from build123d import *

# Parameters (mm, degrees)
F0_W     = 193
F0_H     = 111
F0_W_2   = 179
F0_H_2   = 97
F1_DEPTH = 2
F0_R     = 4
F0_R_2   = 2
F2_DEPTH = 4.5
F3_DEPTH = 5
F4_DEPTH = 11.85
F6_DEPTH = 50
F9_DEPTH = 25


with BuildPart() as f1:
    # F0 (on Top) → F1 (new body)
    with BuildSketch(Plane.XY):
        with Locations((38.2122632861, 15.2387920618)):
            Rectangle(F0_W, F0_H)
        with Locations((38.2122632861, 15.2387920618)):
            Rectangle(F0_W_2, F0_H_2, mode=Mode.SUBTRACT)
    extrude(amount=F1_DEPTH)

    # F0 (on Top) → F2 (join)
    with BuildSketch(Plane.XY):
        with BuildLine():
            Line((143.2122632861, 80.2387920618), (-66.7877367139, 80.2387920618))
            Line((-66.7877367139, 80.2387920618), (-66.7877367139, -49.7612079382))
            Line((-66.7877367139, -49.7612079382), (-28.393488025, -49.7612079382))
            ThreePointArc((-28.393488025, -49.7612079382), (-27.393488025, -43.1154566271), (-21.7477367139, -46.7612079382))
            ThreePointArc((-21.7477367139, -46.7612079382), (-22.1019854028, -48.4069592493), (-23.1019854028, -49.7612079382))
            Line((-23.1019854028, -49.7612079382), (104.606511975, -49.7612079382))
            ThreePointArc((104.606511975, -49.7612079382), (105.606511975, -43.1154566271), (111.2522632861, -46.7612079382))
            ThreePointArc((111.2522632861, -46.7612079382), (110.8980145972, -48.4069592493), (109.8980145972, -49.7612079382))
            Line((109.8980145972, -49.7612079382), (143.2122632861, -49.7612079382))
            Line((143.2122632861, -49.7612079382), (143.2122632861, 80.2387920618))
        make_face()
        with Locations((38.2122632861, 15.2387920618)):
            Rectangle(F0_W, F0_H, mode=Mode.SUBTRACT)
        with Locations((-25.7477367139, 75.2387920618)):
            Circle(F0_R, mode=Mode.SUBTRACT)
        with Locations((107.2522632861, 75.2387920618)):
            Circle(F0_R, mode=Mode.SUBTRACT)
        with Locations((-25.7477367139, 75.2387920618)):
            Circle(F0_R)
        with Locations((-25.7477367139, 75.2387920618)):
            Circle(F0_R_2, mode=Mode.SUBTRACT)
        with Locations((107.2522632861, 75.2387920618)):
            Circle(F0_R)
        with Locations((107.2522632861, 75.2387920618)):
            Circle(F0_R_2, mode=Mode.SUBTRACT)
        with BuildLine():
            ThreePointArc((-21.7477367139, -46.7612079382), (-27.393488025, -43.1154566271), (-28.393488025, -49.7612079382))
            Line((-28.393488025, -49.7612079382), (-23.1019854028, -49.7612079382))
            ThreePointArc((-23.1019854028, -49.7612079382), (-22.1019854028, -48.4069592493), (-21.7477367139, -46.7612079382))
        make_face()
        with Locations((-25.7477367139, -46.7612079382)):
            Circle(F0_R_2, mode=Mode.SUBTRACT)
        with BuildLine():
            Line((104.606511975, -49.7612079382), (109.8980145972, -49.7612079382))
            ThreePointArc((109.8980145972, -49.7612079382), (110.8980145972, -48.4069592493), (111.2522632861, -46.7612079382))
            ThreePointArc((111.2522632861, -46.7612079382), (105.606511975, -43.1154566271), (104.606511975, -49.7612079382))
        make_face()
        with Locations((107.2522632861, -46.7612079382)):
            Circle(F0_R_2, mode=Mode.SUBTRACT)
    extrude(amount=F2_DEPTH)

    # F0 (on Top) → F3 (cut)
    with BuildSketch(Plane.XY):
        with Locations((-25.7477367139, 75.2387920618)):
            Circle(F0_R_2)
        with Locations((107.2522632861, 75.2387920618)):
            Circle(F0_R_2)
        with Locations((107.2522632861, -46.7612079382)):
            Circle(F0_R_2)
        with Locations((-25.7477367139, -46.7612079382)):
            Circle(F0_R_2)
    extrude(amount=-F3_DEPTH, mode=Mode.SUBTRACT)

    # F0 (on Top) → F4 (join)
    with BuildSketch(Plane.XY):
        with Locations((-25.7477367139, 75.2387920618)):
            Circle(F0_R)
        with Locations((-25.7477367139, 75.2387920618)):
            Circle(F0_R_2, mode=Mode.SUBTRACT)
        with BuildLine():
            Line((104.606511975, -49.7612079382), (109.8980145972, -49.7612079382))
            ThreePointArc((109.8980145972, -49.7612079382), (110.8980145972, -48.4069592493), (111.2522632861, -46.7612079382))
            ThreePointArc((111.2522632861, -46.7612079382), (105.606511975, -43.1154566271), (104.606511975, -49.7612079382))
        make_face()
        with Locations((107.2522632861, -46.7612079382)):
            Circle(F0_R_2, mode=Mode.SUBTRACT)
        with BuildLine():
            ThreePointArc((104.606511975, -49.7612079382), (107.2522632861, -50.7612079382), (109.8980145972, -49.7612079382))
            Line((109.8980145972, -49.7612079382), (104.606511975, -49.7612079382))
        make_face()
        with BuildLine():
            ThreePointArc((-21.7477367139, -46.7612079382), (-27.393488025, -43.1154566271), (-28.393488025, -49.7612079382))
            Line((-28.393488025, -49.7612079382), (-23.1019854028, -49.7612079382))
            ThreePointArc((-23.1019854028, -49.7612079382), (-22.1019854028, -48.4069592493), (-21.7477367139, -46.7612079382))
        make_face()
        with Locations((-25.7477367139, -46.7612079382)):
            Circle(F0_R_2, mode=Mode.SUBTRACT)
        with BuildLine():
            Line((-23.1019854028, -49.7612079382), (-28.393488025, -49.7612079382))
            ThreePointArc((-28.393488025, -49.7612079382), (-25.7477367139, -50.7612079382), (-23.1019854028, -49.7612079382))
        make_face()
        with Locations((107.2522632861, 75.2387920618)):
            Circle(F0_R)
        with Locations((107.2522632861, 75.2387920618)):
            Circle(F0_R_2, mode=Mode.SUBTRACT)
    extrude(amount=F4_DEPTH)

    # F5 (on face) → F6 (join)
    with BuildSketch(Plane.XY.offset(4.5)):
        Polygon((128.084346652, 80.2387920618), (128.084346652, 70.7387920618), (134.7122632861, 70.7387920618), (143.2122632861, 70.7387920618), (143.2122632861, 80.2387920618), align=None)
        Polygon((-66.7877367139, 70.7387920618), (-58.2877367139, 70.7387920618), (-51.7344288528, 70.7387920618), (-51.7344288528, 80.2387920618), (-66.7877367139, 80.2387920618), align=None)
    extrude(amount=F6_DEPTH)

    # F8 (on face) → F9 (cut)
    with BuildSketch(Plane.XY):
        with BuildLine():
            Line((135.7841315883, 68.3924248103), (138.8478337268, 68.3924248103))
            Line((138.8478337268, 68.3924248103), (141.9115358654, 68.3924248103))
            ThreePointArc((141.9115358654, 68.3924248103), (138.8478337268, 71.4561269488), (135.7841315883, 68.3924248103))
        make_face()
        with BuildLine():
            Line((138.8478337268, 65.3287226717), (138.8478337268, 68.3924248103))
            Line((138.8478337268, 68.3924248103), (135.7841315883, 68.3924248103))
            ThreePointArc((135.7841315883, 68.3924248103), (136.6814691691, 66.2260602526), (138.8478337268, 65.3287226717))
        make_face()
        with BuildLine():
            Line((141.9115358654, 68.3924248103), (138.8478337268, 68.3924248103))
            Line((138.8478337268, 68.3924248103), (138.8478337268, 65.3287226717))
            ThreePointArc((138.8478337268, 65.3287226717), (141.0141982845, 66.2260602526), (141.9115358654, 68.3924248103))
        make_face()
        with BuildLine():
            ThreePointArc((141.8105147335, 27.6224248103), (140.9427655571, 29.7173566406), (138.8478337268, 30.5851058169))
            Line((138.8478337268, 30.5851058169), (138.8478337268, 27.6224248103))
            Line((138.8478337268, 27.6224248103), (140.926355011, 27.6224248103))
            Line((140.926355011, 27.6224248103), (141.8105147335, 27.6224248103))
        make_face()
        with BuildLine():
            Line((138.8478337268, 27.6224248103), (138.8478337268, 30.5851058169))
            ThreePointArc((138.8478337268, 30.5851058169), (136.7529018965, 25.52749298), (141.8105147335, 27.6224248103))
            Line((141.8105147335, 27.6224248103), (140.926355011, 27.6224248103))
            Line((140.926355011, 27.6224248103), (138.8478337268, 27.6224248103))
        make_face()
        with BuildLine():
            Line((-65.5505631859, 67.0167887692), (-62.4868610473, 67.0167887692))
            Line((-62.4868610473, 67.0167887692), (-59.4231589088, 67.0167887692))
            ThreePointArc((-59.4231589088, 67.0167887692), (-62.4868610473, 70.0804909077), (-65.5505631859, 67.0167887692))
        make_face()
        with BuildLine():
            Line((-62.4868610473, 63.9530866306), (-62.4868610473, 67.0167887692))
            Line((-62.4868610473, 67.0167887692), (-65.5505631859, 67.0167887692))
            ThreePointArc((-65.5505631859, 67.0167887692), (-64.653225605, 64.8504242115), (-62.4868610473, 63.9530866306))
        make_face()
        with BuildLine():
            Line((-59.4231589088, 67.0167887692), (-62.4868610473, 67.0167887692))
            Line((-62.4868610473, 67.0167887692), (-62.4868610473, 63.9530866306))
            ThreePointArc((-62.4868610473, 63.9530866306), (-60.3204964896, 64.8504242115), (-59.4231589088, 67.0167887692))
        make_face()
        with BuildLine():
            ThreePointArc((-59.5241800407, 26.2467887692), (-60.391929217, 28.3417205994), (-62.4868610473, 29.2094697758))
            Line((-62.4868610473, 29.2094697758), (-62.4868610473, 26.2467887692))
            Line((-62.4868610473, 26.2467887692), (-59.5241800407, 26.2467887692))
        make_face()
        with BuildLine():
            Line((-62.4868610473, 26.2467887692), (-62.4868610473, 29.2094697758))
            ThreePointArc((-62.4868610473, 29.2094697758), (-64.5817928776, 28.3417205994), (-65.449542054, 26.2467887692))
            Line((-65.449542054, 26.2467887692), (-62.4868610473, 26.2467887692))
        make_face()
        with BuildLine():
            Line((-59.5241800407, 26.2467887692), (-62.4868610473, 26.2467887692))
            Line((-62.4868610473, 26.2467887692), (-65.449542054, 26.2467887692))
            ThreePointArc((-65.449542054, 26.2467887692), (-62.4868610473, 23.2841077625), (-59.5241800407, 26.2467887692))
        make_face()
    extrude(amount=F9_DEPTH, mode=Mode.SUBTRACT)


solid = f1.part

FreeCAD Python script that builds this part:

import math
import FreeCAD as App
import Part
import Sketcher

V = App.Vector
Q = App.Units.Quantity


def add_polygon(sketch, points):
    """Adds a closed chain of lines whose ends are joined by coincident constraints."""
    first, n = sketch.GeometryCount, len(points)
    for a, b in zip(points, points[1:] + points[:1]):
        sketch.addGeometry(Part.LineSegment(App.Vector(*a, 0), App.Vector(*b, 0)), False)
    for i in range(n):
        sketch.addConstraint(Sketcher.Constraint("Coincident", first + i, 2, first + (i + 1) % n, 1))

doc = App.newDocument("Part")
body = doc.addObject("PartDesign::Body", "Body")

sketch1 = doc.addObject("Sketcher::SketchObject", "Sketch")
body.addObject(sketch1)
sketch1.AttachmentSupport = (doc.XY_Plane, [""])
sketch1.MapMode = "FlatFace"
add_polygon(sketch1, [(-58.287737, 70.738792), (-58.287737, -40.261208), (134.712263, -40.261208), (134.712263, 70.738792)])
add_polygon(sketch1, [(127.712263, -33.261208), (-51.287737, -33.261208), (-51.287737, 63.738792), (127.712263, 63.738792)])
sketch1.addConstraint(Sketcher.Constraint("Vertical", 0))
sketch1.addConstraint(Sketcher.Constraint("Horizontal", 1))
sketch1.addConstraint(Sketcher.Constraint("Vertical", 2))
sketch1.addConstraint(Sketcher.Constraint("Horizontal", 3))
sketch1.addConstraint(Sketcher.Constraint("Horizontal", 4))
sketch1.addConstraint(Sketcher.Constraint("Vertical", 5))
sketch1.addConstraint(Sketcher.Constraint("Horizontal", 6))
sketch1.addConstraint(Sketcher.Constraint("Vertical", 7))
sketch1.addConstraint(Sketcher.Constraint("DistanceX", 1, 1, 1, 2, Q("193 mm")))
sketch1.addConstraint(Sketcher.Constraint("DistanceX", 4, 2, 4, 1, Q("179 mm")))
sketch1.addConstraint(Sketcher.Constraint("DistanceY", 0, 2, 0, 1, Q("111 mm")))
sketch1.addConstraint(Sketcher.Constraint("DistanceY", 5, 1, 5, 2, Q("97 mm")))
sketch1.addConstraint(Sketcher.Constraint("DistanceX", 0, 2, 4, 2, Q("7 mm")))
sketch1.addConstraint(Sketcher.Constraint("DistanceY", 0, 2, 4, 2, Q("7 mm")))
sketch1.addConstraint(Sketcher.Constraint("DistanceX", 0, 2, -1, 1, Q("58.287737 mm")))
sketch1.addConstraint(Sketcher.Constraint("DistanceY", 0, 2, -1, 1, Q("40.261208 mm")))
pad1 = doc.addObject("PartDesign::Pad", "Pad")
body.addObject(pad1)
pad1.Profile = sketch1
pad1.Length = 2

sketch2 = doc.addObject("Sketcher::SketchObject", "Sketch001")
body.addObject(sketch2)
sketch2.AttachmentSupport = (doc.XY_Plane, [""])
sketch2.MapMode = "FlatFace"
add_polygon(sketch2, [(143.212263, 80.238792), (-66.787737, 80.238792), (-66.787737, -49.761208), (143.212263, -49.761208)])
sketch2.addGeometry(Part.Circle(V(-25.747737, -46.761208, 0), V(0, 0, 1), 2), False)
sketch2.addGeometry(Part.Circle(V(107.252263, -46.761208, 0), V(0, 0, 1), 2), False)
sketch2.addGeometry(Part.Circle(V(-25.747737, 75.238792, 0), V(0, 0, 1), 2), False)
add_polygon(sketch2, [(134.712263, -40.261208), (-58.287737, -40.261208), (-58.287737, 70.738792), (134.712263, 70.738792)])
sketch2.addGeometry(Part.Circle(V(107.252263, 75.238792, 0), V(0, 0, 1), 2), False)
sketch2.addConstraint(Sketcher.Constraint("Horizontal", 0))
sketch2.addConstraint(Sketcher.Constraint("Vertical", 1))
sketch2.addConstraint(Sketcher.Constraint("Horizontal", 2))
sketch2.addConstraint(Sketcher.Constraint("Vertical", 3))
sketch2.addConstraint(Sketcher.Constraint("Horizontal", 7))
sketch2.addConstraint(Sketcher.Constraint("Vertical", 8))
sketch2.addConstraint(Sketcher.Constraint("Horizontal", 9))
sketch2.addConstraint(Sketcher.Constraint("Vertical", 10))
sketch2.addConstraint(Sketcher.Constraint("Equal", 4, 5))
sketch2.addConstraint(Sketcher.Constraint("Equal", 5, 6))
sketch2.addConstraint(Sketcher.Constraint("Equal", 6, 11))
sketch2.addConstraint(Sketcher.Constraint("Horizontal", 4, 3, 5, 3))
sketch2.addConstraint(Sketcher.Constraint("Horizontal", 6, 3, 11, 3))
sketch2.addConstraint(Sketcher.Constraint("Vertical", 4, 3, 6, 3))
sketch2.addConstraint(Sketcher.Constraint("Vertical", 5, 3, 11, 3))
sketch2.addConstraint(Sketcher.Constraint("Diameter", 4, Q("4 mm")))
sketch2.addConstraint(Sketcher.Constraint("DistanceX", 0, 2, 0, 1, Q("210 mm")))
sketch2.addConstraint(Sketcher.Constraint("DistanceX", 7, 2, 7, 1, Q("193 mm")))
sketch2.addConstraint(Sketcher.Constraint("DistanceY", 1, 2, 1, 1, Q("130 mm")))
sketch2.addConstraint(Sketcher.Constraint("DistanceY", 8, 1, 8, 2, Q("111 mm")))
sketch2.addConstraint(Sketcher.Constraint("DistanceX", 4, 3, 5, 3, Q("133 mm")))
sketch2.addConstraint(Sketcher.Constraint("DistanceY", 4, 3, 6, 3, Q("122 mm")))
sketch2.addConstraint(Sketcher.Constraint("DistanceY", 6, 3, 0, 2, Q("5 mm")))
sketch2.addConstraint(Sketcher.Constraint("DistanceX", 1, 2, 7, 2, Q("8.5 mm")))
sketch2.addConstraint(Sketcher.Constraint("DistanceY", 1, 2, 7, 2, Q("9.5 mm")))
sketch2.addConstraint(Sketcher.Constraint("DistanceX", 0, 2, 6, 3, Q("41.04 mm")))
sketch2.addConstraint(Sketcher.Constraint("DistanceX", 4, 3, -1, 1, Q("25.747737 mm")))
sketch2.addConstraint(Sketcher.Constraint("DistanceY", 4, 3, -1, 1, Q("46.761208 mm")))
pad2 = doc.addObject("PartDesign::Pad", "Pad001")
body.addObject(pad2)
pad2.Profile = sketch2
pad2.Length = 4.5

sketch3 = doc.addObject("Sketcher::SketchObject", "Sketch002")
body.addObject(sketch3)
sketch3.AttachmentSupport = (doc.XY_Plane, [""])
sketch3.MapMode = "FlatFace"
sketch3.addGeometry(Part.Circle(V(-25.747737, 75.238792, 0), V(0, 0, 1), 2), False)
sketch3.addGeometry(Part.Circle(V(107.252263, 75.238792, 0), V(0, 0, 1), 2), False)
sketch3.addGeometry(Part.Circle(V(107.252263, -46.761208, 0), V(0, 0, 1), 2), False)
sketch3.addGeometry(Part.Circle(V(-25.747737, -46.761208, 0), V(0, 0, 1), 2), False)
sketch3.addConstraint(Sketcher.Constraint("Equal", 0, 1))
sketch3.addConstraint(Sketcher.Constraint("Equal", 1, 2))
sketch3.addConstraint(Sketcher.Constraint("Equal", 2, 3))
sketch3.addConstraint(Sketcher.Constraint("Horizontal", 0, 3, 1, 3))
sketch3.addConstraint(Sketcher.Constraint("Horizontal", 2, 3, 3, 3))
sketch3.addConstraint(Sketcher.Constraint("Vertical", 1, 3, 2, 3))
sketch3.addConstraint(Sketcher.Constraint("Vertical", 0, 3, 3, 3))
sketch3.addConstraint(Sketcher.Constraint("Diameter", 0, Q("4 mm")))
sketch3.addConstraint(Sketcher.Constraint("DistanceX", 0, 3, 1, 3, Q("133 mm")))
sketch3.addConstraint(Sketcher.Constraint("DistanceY", 2, 3, 1, 3, Q("122 mm")))
sketch3.addConstraint(Sketcher.Constraint("DistanceX", 0, 3, -1, 1, Q("25.747737 mm")))
sketch3.addConstraint(Sketcher.Constraint("DistanceY", -1, 1, 0, 3, Q("75.238792 mm")))
pocket1 = doc.addObject("PartDesign::Pocket", "Pocket")
body.addObject(pocket1)
pocket1.Profile = sketch3
pocket1.Length = 5

sketch4 = doc.addObject("Sketcher::SketchObject", "Sketch003")
body.addObject(sketch4)
sketch4.AttachmentSupport = (doc.XY_Plane, [""])
sketch4.MapMode = "FlatFace"
sketch4.addGeometry(Part.Circle(V(-25.747737, 75.238792, 0), V(0, 0, 1), 4), False)
sketch4.addGeometry(Part.Circle(V(-25.747737, 75.238792, 0), V(0, 0, 1), 2), False)
sketch4.addGeometry(Part.ArcOfCircle(Part.Circle(V(107.252263, -46.761208, 0), V(0, 0, 1), 4), math.radians(0), math.radians(228.590378)), False)
sketch4.addGeometry(Part.ArcOfCircle(Part.Circle(V(107.252263, -46.761208, 0), V(0, 0, 1), 4), math.radians(-131.409622), math.radians(-48.590378)), False)
sketch4.addGeometry(Part.ArcOfCircle(Part.Circle(V(107.252263, -46.761208, 0), V(0, 0, 1), 4), math.radians(-48.590378), math.radians(0)), False)
sketch4.addGeometry(Part.Circle(V(107.252263, -46.761208, 0), V(0, 0, 1), 2), False)
sketch4.addGeometry(Part.ArcOfCircle(Part.Circle(V(-25.747737, -46.761208, 0), V(0, 0, 1), 4), math.radians(0), math.radians(228.590378)), False)
sketch4.addGeometry(Part.ArcOfCircle(Part.Circle(V(-25.747737, -46.761208, 0), V(0, 0, 1), 4), math.radians(-131.409622), math.radians(-48.590378)), False)
sketch4.addGeometry(Part.ArcOfCircle(Part.Circle(V(-25.747737, -46.761208, 0), V(0, 0, 1), 4), math.radians(-48.590378), math.radians(0)), False)
sketch4.addGeometry(Part.Circle(V(-25.747737, -46.761208, 0), V(0, 0, 1), 2), False)
sketch4.addGeometry(Part.Circle(V(107.252263, 75.238792, 0), V(0, 0, 1), 4), False)
sketch4.addGeometry(Part.Circle(V(107.252263, 75.238792, 0), V(0, 0, 1), 2), False)
sketch4.addConstraint(Sketcher.Constraint("Tangent", 2, 2, 3, 1))
sketch4.addConstraint(Sketcher.Constraint("Tangent", 3, 2, 4, 1))
sketch4.addConstraint(Sketcher.Constraint("Tangent", 4, 2, 2, 1))
sketch4.addConstraint(Sketcher.Constraint("Tangent", 6, 2, 7, 1))
sketch4.addConstraint(Sketcher.Constraint("Tangent", 7, 2, 8, 1))
sketch4.addConstraint(Sketcher.Constraint("Tangent", 8, 2, 6, 1))
sketch4.addConstraint(Sketcher.Constraint("Coincident", 1, 3, 0, 3))
sketch4.addConstraint(Sketcher.Constraint("Coincident", 5, 3, 2, 3))
sketch4.addConstraint(Sketcher.Constraint("Coincident", 9, 3, 6, 3))
sketch4.addConstraint(Sketcher.Constraint("Coincident", 11, 3, 10, 3))
sketch4.addConstraint(Sketcher.Constraint("Equal", 0, 2))
sketch4.addConstraint(Sketcher.Constraint("Equal", 1, 5))
sketch4.addConstraint(Sketcher.Constraint("Equal", 4, 6))
sketch4.addConstraint(Sketcher.Constraint("Equal", 5, 9))
sketch4.addConstraint(Sketcher.Constraint("Equal", 8, 10))
sketch4.addConstraint(Sketcher.Constraint("Equal", 9, 11))
sketch4.addConstraint(Sketcher.Constraint("Horizontal", 5, 3, 6, 3))
sketch4.addConstraint(Sketcher.Constraint("Horizontal", 1, 3, 10, 3))
sketch4.addConstraint(Sketcher.Constraint("Horizontal", 2, 2, 3, 2))
sketch4.addConstraint(Sketcher.Constraint("Horizontal", 9, 3, 4, 2))
sketch4.addConstraint(Sketcher.Constraint("Horizontal", 3, 2, 6, 2))
sketch4.addConstraint(Sketcher.Constraint("Horizontal", 6, 2, 7, 2))
sketch4.addConstraint(Sketcher.Constraint("Horizontal", 4, 2, 8, 2))
sketch4.addConstraint(Sketcher.Constraint("Vertical", 1, 3, 6, 3))
sketch4.addConstraint(Sketcher.Constraint("Vertical", 5, 3, 10, 3))
sketch4.addConstraint(Sketcher.Constraint("Diameter", 0, Q("8 mm")))
sketch4.addConstraint(Sketcher.Constraint("Diameter", 1, Q("4 mm")))
sketch4.addConstraint(Sketcher.Constraint("DistanceX", 0, 3, 2, 3, Q("133 mm")))
sketch4.addConstraint(Sketcher.Constraint("DistanceY", 2, 3, 0, 3, Q("122 mm")))
sketch4.addConstraint(Sketcher.Constraint("DistanceY", 2, 2, 2, 3, Q("3 mm")))
sketch4.addConstraint(Sketcher.Constraint("DistanceX", -1, 1, 2, 2, Q("104.606512 mm")))
sketch4.addConstraint(Sketcher.Constraint("DistanceY", -1, 1, 0, 3, Q("75.238792 mm")))
pad3 = doc.addObject("PartDesign::Pad", "Pad002")
body.addObject(pad3)
pad3.Profile = sketch4
pad3.Length = 11.85

sketch5 = doc.addObject("Sketcher::SketchObject", "Sketch004")
body.addObject(sketch5)
sketch5.AttachmentSupport = (doc.XY_Plane, [""])
sketch5.MapMode = "FlatFace"
sketch5.AttachmentOffset = App.Placement(V(0, 0, 4.5), App.Rotation())
add_polygon(sketch5, [(128.084347, 80.238792), (128.084347, 70.738792), (143.212263, 70.738792), (143.212263, 80.238792)])
add_polygon(sketch5, [(-66.787737, 70.738792), (-51.734429, 70.738792), (-51.734429, 80.238792), (-66.787737, 80.238792)])
sketch5.addConstraint(Sketcher.Constraint("Vertical", 0))
sketch5.addConstraint(Sketcher.Constraint("Horizontal", 1))
sketch5.addConstraint(Sketcher.Constraint("Vertical", 2))
sketch5.addConstraint(Sketcher.Constraint("Horizontal", 3))
sketch5.addConstraint(Sketcher.Constraint("Horizontal", 4))
sketch5.addConstraint(Sketcher.Constraint("Vertical", 5))
sketch5.addConstraint(Sketcher.Constraint("Horizontal", 6))
sketch5.addConstraint(Sketcher.Constraint("Vertical", 7))
sketch5.addConstraint(Sketcher.Constraint("Horizontal", 1, 2, 4, 2))
sketch5.addConstraint(Sketcher.Constraint("Horizontal", 3, 2, 5, 2))
sketch5.addConstraint(Sketcher.Constraint("DistanceY", 0, 2, 0, 1, Q("9.5 mm")))
sketch5.addConstraint(Sketcher.Constraint("DistanceX", 6, 2, 2, 2, Q("210 mm")))
sketch5.addConstraint(Sketcher.Constraint("DistanceX", 1, 1, 1, 2, Q("15.127917 mm")))
sketch5.addConstraint(Sketcher.Constraint("DistanceX", 4, 1, 4, 2, Q("15.053308 mm")))
sketch5.addConstraint(Sketcher.Constraint("DistanceX", 4, 2, -1, 1, Q("51.734429 mm")))
sketch5.addConstraint(Sketcher.Constraint("DistanceY", -1, 1, 0, 2, Q("70.738792 mm")))
pad4 = doc.addObject("PartDesign::Pad", "Pad003")
body.addObject(pad4)
pad4.Profile = sketch5
pad4.Length = 50

sketch6 = doc.addObject("Sketcher::SketchObject", "Sketch005")
body.addObject(sketch6)
sketch6.AttachmentSupport = (doc.XY_Plane, [""])
sketch6.MapMode = "FlatFace"
sketch6.addGeometry(Part.ArcOfCircle(Part.Circle(V(138.847834, 68.392425, 0), V(0, 0, 1), 3.063702), math.radians(0), math.radians(180)), False)
sketch6.addGeometry(Part.ArcOfCircle(Part.Circle(V(138.847834, 68.392425, 0), V(0, 0, 1), 3.063702), math.radians(180), math.radians(270)), False)
sketch6.addGeometry(Part.ArcOfCircle(Part.Circle(V(138.847834, 68.392425, 0), V(0, 0, 1), 3.063702), math.radians(-90), math.radians(0)), False)
sketch6.addGeometry(Part.ArcOfCircle(Part.Circle(V(138.847834, 27.622425, 0), V(0, 0, 1), 2.962681), math.radians(0), math.radians(90)), False)
sketch6.addGeometry(Part.ArcOfCircle(Part.Circle(V(138.847834, 27.622425, 0), V(0, 0, 1), 2.962681), math.radians(90), math.radians(360)), False)
sketch6.addGeometry(Part.ArcOfCircle(Part.Circle(V(-62.486861, 67.016789, 0), V(0, 0, 1), 3.063702), math.radians(0), math.radians(180)), False)
sketch6.addGeometry(Part.ArcOfCircle(Part.Circle(V(-62.486861, 67.016789, 0), V(0, 0, 1), 3.063702), math.radians(180), math.radians(270)), False)
sketch6.addGeometry(Part.ArcOfCircle(Part.Circle(V(-62.486861, 67.016789, 0), V(0, 0, 1), 3.063702), math.radians(-90), math.radians(0)), False)
sketch6.addGeometry(Part.ArcOfCircle(Part.Circle(V(-62.486861, 26.246789, 0), V(0, 0, 1), 2.962681), math.radians(0), math.radians(90)), False)
sketch6.addGeometry(Part.ArcOfCircle(Part.Circle(V(-62.486861, 26.246789, 0), V(0, 0, 1), 2.962681), math.radians(90), math.radians(180)), False)
sketch6.addGeometry(Part.ArcOfCircle(Part.Circle(V(-62.486861, 26.246789, 0), V(0, 0, 1), 2.962681), math.radians(180), math.radians(360)), False)
sketch6.addConstraint(Sketcher.Constraint("Tangent", 0, 2, 1, 1))
sketch6.addConstraint(Sketcher.Constraint("Tangent", 1, 2, 2, 1))
sketch6.addConstraint(Sketcher.Constraint("Tangent", 2, 2, 0, 1))
sketch6.addConstraint(Sketcher.Constraint("Tangent", 3, 1, 4, 2))
sketch6.addConstraint(Sketcher.Constraint("Coincident", 4, 1, 3, 2))
sketch6.addConstraint(Sketcher.Constraint("Tangent", 5, 2, 6, 1))
sketch6.addConstraint(Sketcher.Constraint("Tangent", 6, 2, 7, 1))
sketch6.addConstraint(Sketcher.Constraint("Tangent", 7, 2, 5, 1))
sketch6.addConstraint(Sketcher.Constraint("Tangent", 8, 2, 9, 1))
sketch6.addConstraint(Sketcher.Constraint("Tangent", 9, 2, 10, 1))
sketch6.addConstraint(Sketcher.Constraint("Tangent", 10, 2, 8, 1))
sketch6.addConstraint(Sketcher.Constraint("Equal", 2, 5))
sketch6.addConstraint(Sketcher.Constraint("Equal", 4, 8))
sketch6.addConstraint(Sketcher.Constraint("Horizontal", 2, 3, 0, 2))
sketch6.addConstraint(Sketcher.Constraint("Horizontal", 0, 2, 2, 2))
sketch6.addConstraint(Sketcher.Constraint("Horizontal", 4, 3, 3, 1))
sketch6.addConstraint(Sketcher.Constraint("Horizontal", 7, 3, 5, 2))
sketch6.addConstraint(Sketcher.Constraint("Horizontal", 5, 2, 7, 2))
sketch6.addConstraint(Sketcher.Constraint("Horizontal", 10, 3, 9, 2))
sketch6.addConstraint(Sketcher.Constraint("Horizontal", 9, 2, 10, 2))
sketch6.addConstraint(Sketcher.Constraint("Vertical", 2, 3, 3, 3))
sketch6.addConstraint(Sketcher.Constraint("Vertical", 7, 3, 8, 3))
sketch6.addConstraint(Sketcher.Constraint("Vertical", 4, 3, 1, 2))
sketch6.addConstraint(Sketcher.Constraint("Vertical", 1, 2, 4, 1))
sketch6.addConstraint(Sketcher.Constraint("Vertical", 10, 3, 6, 2))
sketch6.addConstraint(Sketcher.Constraint("Vertical", 6, 2, 8, 2))
sketch6.addConstraint(Sketcher.Constraint("Radius", 3, Q("2.962681 mm")))
sketch6.addConstraint(Sketcher.Constraint("DistanceY", 3, 3, 0, 3, Q("40.77 mm")))
sketch6.addConstraint(Sketcher.Constraint("DistanceY", 8, 3, 5, 3, Q("40.77 mm")))
sketch6.addConstraint(Sketcher.Constraint("Radius", 0, Q("3.063702 mm")))
sketch6.addConstraint(Sketcher.Constraint("DistanceX", 5, 3, -1, 1, Q("62.486861 mm")))
sketch6.addConstraint(Sketcher.Constraint("DistanceY", -1, 1, 5, 3, Q("67.016789 mm")))
sketch6.addConstraint(Sketcher.Constraint("DistanceX", -1, 1, 0, 2, Q("135.784132 mm")))
sketch6.addConstraint(Sketcher.Constraint("DistanceY", -1, 1, 0, 3, Q("68.392425 mm")))
pocket2 = doc.addObject("PartDesign::Pocket", "Pocket001")
body.addObject(pocket2)
pocket2.Profile = sketch6
pocket2.Length = 25
pocket2.Reversed = True

doc.recompute()
